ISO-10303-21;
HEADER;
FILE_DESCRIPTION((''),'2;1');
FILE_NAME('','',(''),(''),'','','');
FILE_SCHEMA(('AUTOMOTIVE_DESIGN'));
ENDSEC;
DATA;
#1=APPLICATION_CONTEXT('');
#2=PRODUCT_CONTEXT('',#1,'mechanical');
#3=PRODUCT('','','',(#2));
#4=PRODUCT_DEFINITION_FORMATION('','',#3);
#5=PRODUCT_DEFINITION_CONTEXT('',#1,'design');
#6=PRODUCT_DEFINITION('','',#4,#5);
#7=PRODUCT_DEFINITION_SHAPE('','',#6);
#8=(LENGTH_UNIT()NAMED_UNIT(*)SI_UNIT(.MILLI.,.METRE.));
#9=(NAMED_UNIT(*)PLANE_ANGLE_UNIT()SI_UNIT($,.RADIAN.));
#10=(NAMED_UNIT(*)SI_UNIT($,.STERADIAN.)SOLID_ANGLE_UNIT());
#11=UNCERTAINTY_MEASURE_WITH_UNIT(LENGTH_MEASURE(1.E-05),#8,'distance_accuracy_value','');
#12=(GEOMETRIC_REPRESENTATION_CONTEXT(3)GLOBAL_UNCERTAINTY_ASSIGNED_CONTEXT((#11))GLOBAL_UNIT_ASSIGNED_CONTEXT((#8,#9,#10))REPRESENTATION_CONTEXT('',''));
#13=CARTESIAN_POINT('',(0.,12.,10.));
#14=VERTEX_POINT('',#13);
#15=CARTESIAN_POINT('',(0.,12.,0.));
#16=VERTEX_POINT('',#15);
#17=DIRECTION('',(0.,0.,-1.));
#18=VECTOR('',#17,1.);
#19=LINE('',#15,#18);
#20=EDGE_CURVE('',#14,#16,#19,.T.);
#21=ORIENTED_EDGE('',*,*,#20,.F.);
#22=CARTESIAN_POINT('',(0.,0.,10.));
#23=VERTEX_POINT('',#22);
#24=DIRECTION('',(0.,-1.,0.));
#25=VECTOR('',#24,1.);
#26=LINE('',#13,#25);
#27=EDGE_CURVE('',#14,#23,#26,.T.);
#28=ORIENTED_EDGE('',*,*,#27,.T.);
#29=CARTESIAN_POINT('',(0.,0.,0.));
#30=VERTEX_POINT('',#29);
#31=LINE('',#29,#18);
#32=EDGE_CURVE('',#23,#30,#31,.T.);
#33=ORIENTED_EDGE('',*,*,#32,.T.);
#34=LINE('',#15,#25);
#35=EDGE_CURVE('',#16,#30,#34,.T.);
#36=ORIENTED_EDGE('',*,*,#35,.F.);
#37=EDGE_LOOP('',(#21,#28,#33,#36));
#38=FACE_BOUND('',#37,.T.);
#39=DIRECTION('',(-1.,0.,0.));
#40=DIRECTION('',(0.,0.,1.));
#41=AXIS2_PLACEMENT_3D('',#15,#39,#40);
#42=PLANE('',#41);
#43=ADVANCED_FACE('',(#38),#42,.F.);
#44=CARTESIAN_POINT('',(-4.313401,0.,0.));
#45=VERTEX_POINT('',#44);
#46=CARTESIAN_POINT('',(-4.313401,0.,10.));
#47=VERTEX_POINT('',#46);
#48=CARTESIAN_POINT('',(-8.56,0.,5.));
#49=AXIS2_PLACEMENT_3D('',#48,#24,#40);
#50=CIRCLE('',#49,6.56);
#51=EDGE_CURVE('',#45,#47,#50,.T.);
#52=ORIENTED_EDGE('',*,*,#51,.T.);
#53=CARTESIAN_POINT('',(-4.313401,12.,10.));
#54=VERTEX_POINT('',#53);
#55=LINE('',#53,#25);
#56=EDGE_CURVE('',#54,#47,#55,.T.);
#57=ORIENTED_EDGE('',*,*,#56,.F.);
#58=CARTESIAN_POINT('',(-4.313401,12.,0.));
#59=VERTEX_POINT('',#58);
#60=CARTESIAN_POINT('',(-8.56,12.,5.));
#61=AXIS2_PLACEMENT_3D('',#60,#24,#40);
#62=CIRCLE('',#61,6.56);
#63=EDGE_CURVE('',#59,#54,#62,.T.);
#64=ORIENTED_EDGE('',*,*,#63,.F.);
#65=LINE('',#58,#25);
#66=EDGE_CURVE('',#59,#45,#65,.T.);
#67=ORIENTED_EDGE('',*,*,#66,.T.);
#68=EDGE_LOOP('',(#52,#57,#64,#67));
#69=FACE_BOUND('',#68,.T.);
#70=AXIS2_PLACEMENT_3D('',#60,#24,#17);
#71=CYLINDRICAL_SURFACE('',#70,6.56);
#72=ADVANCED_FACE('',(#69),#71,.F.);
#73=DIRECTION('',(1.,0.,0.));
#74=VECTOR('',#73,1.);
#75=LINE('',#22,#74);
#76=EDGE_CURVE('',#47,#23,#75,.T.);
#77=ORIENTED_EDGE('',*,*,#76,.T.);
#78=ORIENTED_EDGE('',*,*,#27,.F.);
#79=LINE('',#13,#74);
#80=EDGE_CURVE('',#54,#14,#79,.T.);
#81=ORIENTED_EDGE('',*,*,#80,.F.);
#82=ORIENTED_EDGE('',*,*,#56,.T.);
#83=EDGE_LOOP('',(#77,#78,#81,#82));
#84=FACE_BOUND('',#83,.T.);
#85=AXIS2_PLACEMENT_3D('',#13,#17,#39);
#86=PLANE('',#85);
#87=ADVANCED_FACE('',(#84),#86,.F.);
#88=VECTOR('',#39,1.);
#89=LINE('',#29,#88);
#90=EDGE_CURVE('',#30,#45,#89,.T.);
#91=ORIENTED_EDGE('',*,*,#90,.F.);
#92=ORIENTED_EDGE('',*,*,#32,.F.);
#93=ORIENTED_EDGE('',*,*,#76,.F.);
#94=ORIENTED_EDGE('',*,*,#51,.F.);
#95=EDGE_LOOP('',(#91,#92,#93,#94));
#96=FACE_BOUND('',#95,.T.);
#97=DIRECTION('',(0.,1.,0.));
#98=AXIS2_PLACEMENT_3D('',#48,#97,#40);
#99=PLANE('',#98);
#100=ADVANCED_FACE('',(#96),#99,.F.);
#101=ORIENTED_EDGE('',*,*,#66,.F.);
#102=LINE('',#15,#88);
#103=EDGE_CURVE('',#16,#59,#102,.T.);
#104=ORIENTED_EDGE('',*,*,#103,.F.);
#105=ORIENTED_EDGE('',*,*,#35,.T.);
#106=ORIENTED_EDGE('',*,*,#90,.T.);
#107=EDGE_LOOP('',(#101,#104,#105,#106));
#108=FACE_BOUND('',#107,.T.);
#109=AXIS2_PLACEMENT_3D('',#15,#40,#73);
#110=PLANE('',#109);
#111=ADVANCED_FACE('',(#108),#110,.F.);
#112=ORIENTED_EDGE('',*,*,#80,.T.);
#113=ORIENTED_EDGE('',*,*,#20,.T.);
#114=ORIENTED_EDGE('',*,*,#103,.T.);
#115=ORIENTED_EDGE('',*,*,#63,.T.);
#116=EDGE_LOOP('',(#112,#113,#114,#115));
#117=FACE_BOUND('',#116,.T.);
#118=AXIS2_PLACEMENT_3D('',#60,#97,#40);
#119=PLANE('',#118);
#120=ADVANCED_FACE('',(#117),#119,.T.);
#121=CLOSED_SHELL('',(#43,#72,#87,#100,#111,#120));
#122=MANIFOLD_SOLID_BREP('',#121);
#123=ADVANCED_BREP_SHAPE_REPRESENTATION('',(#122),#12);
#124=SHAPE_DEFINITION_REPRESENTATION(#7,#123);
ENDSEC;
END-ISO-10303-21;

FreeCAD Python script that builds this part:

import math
import FreeCAD as App
import Part
import Sketcher

V = App.Vector
Q = App.Units.Quantity

doc = App.newDocument("Part")
body = doc.addObject("PartDesign::Body", "Body")

# Sketch on XZ plane
sketch1 = doc.addObject("Sketcher::SketchObject", "Sketch")
body.addObject(sketch1)
sketch1.AttachmentSupport = (doc.XZ_Plane, [""])
sketch1.MapMode = "FlatFace"
sketch1.addGeometry([
    Part.LineSegment(V(0, 10, 0), V(0, 0, 0)),
    Part.LineSegment(V(0, 0, 0), V(-4.3, 0, 0)),
    Part.ArcOfCircle(Part.Circle(V(-8.6, 5, 0), V(0, 0, 1), 6.6), math.radians(-50), math.radians(50)),
    Part.LineSegment(V(-4.3, 10, 0), V(0, 10, 0)),
], False)
sketch1.addConstraint([
    Sketcher.Constraint("Coincident", 0, 2, 1, 1),
    Sketcher.Constraint("Coincident", 1, 2, 2, 1),
    Sketcher.Constraint("Coincident", 2, 2, 3, 1),
    Sketcher.Constraint("Coincident", 3, 2, 0, 1),
    Sketcher.Constraint("Vertical", 0),
    Sketcher.Constraint("Horizontal", 1),
    Sketcher.Constraint("Horizontal", 3),
    Sketcher.Constraint("Coincident", 0, 2, -1, 1),
    Sketcher.Constraint("Vertical", 1, 2, 2, 2),
    Sketcher.Constraint("DistanceY", 0, 2, 0, 1, Q("10 mm")),
    Sketcher.Constraint("Radius", 2, Q("6.56 mm")),
    Sketcher.Constraint("DistanceX", 2, 3, -1, 1, Q("8.56 mm")),
])
pad1 = doc.addObject("PartDesign::Pad", "Pad")
body.addObject(pad1)
pad1.Profile = sketch1
pad1.Length = 12
pad1.Reversed = True

doc.recompute()
